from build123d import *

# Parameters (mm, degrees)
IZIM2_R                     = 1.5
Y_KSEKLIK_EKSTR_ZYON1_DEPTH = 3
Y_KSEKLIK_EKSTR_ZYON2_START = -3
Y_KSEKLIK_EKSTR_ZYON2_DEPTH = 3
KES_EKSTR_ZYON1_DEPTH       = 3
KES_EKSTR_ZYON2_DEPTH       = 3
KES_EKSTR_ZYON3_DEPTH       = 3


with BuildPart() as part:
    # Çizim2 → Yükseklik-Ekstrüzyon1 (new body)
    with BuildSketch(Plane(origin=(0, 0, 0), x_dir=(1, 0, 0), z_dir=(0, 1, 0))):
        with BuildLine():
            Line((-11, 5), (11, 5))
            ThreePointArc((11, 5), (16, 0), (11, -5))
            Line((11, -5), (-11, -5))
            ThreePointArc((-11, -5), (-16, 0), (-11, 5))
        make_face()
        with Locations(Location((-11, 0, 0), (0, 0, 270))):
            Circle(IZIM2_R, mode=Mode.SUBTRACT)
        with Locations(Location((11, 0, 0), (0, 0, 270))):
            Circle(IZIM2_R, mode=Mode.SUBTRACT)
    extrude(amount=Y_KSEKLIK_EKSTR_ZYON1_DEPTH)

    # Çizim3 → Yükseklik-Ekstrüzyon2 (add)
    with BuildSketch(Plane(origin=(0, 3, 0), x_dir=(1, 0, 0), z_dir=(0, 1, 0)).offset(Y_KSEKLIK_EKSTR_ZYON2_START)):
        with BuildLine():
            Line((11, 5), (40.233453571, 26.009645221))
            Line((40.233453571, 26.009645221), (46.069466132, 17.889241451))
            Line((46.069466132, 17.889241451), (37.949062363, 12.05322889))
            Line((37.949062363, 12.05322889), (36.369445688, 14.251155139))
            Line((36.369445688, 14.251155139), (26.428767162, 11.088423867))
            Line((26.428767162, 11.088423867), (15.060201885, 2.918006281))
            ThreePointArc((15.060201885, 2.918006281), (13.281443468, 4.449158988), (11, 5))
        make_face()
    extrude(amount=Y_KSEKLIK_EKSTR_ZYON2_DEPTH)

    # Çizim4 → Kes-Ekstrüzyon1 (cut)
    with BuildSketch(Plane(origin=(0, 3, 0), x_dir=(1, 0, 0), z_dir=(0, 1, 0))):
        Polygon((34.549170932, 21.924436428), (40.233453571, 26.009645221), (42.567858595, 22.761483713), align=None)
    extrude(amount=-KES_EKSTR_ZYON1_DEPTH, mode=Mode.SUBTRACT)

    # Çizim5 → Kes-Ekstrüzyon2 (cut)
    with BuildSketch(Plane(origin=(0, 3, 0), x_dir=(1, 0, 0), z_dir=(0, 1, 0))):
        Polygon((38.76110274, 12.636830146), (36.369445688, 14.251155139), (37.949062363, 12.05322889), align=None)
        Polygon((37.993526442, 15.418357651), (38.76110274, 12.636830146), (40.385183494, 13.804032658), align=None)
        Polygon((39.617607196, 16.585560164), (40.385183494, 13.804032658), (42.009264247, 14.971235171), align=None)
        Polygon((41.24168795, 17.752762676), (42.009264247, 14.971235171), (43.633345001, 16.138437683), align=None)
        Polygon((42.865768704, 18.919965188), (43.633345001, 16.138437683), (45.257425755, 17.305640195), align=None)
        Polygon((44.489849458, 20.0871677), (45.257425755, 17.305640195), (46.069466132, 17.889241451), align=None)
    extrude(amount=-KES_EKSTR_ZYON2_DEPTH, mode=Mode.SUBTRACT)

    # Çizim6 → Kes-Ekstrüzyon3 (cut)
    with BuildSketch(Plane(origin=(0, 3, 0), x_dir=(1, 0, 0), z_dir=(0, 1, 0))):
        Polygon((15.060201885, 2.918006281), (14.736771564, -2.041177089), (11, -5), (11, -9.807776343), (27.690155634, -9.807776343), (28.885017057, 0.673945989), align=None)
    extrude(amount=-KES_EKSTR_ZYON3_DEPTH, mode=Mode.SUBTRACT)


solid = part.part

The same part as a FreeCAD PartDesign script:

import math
import FreeCAD as App
import Part
import Sketcher

V = App.Vector
Q = App.Units.Quantity


def add_polygon(sketch, points):
    """Adds a closed chain of lines whose ends are joined by coincident constraints."""
    first, n = sketch.GeometryCount, len(points)
    for a, b in zip(points, points[1:] + points[:1]):
        sketch.addGeometry(Part.LineSegment(App.Vector(*a, 0), App.Vector(*b, 0)), False)
    for i in range(n):
        sketch.addConstraint(Sketcher.Constraint("Coincident", first + i, 2, first + (i + 1) % n, 1))

doc = App.newDocument("Part")
body = doc.addObject("PartDesign::Body", "Body")

# Sketch on XZ plane
sketch1 = body.newObject("Sketcher::SketchObject", "Sketch")
sketch1.AttachmentSupport = (doc.getObject("XZ_Plane"), [""])
sketch1.MapMode = "FlatFace"
sketch1.addGeometry([
    Part.LineSegment(V(11, -5, 0), V(-11, -5, 0)),  # 0
    Part.ArcOfCircle(Part.Circle(V(-11, 0, 0), V(0, 0, 1), 5), math.radians(90), math.radians(270)),  # 1
    Part.LineSegment(V(-11, 5, 0), V(11, 5, 0)),  # 2
    Part.ArcOfCircle(Part.Circle(V(11, 0, 0), V(0, 0, 1), 5), math.radians(-90), math.radians(90)),  # 3
    Part.Circle(V(11, 0, 0), V(0, 0, 1), 1.5),  # 4
    Part.Circle(V(-11, 0, 0), V(0, 0, 1), 1.5),  # 5
], False)
sketch1.addConstraint([
    Sketcher.Constraint("Tangent", 0, 2, 1, 2),
    Sketcher.Constraint("Tangent", 1, 1, 2, 1),
    Sketcher.Constraint("Tangent", 2, 2, 3, 2),
    Sketcher.Constraint("Tangent", 3, 1, 0, 1),
    Sketcher.Constraint("Horizontal", 0),
    Sketcher.Constraint("Horizontal", 2),
    Sketcher.Constraint("Coincident", 4, 3, 3, 3),
    Sketcher.Constraint("Coincident", 5, 3, 1, 3),
    Sketcher.Constraint("Equal", 4, 5),
    Sketcher.Constraint("Symmetric", 1, 3, 3, 3, -1, 1),
    Sketcher.Constraint("Diameter", 4, Q("3 mm")),
    Sketcher.Constraint("Radius", 1, Q("5 mm")),
    Sketcher.Constraint("DistanceX", 0, 2, 0, 1, Q("22 mm")),
])
pad1 = body.newObject("PartDesign::Pad", "Pad")
pad1.Profile = sketch1
pad1.Length = 3
pad1.Reversed = True

# Sketch on XZ plane
sketch2 = body.newObject("Sketcher::SketchObject", "Sketch001")
sketch2.AttachmentSupport = (doc.getObject("XZ_Plane"), [""])
sketch2.MapMode = "FlatFace"
sketch2.addGeometry([
    Part.LineSegment(V(40.233454, -26.009645, 0), V(11, -5, 0)),  # 0
    Part.ArcOfCircle(Part.Circle(V(11, 0, 0), V(0, 0, 1), 5), math.radians(-90), math.radians(-35.704237)),  # 1
    Part.LineSegment(V(15.060202, -2.918006, 0), V(26.428767, -11.088424, 0)),  # 2
    Part.LineSegment(V(26.428767, -11.088424, 0), V(36.369446, -14.251155, 0)),  # 3
    Part.LineSegment(V(36.369446, -14.251155, 0), V(37.949062, -12.053229, 0)),  # 4
    Part.LineSegment(V(37.949062, -12.053229, 0), V(46.069466, -17.889241, 0)),  # 5
    Part.LineSegment(V(46.069466, -17.889241, 0), V(40.233454, -26.009645, 0)),  # 6
], False)
sketch2.addConstraint([
    Sketcher.Constraint("Coincident", 0, 2, 1, 1),
    Sketcher.Constraint("Coincident", 1, 2, 2, 1),
    Sketcher.Constraint("Coincident", 2, 2, 3, 1),
    Sketcher.Constraint("Coincident", 3, 2, 4, 1),
    Sketcher.Constraint("Coincident", 4, 2, 5, 1),
    Sketcher.Constraint("Coincident", 5, 2, 6, 1),
    Sketcher.Constraint("Coincident", 6, 2, 0, 1),
    Sketcher.Constraint("PointOnObject", 1, 3, -1),
    Sketcher.Constraint("Parallel", 0, 2),
    Sketcher.Constraint("Perpendicular", 2, 4),
    Sketcher.Constraint("Perpendicular", 4, 5),
    Sketcher.Constraint("Perpendicular", 5, 6),
    Sketcher.Constraint("Vertical", 1, 3, 0, 2),
    Sketcher.Constraint("Equal", 5, 6),
    Sketcher.Constraint("Radius", 1, Q("5 mm")),
    Sketcher.Constraint("Distance", 0, Q("36 mm")),
    Sketcher.Constraint("Distance", 2, Q("14 mm")),
    Sketcher.Constraint("Distance", 5, Q("10 mm")),
    Sketcher.Constraint("DistanceX", -1, 1, 1, 3, Q("11 mm")),
    Sketcher.Constraint("DistanceX", -1, 1, 1, 2, Q("15.060202 mm")),
    Sketcher.Constraint("DistanceX", 2, 2, 5, 2, Q("19.640699 mm")),
    Sketcher.Constraint("Distance", 3, Q("10.431681 mm")),
])
pad2 = body.newObject("PartDesign::Pad", "Pad001")
pad2.Profile = sketch2
pad2.Length = 3
pad2.Reversed = True

# Sketch on XZ plane
sketch3 = body.newObject("Sketcher::SketchObject", "Sketch002")
sketch3.AttachmentSupport = (doc.getObject("XZ_Plane"), [""])
sketch3.MapMode = "FlatFace"
sketch3.AttachmentOffset = App.Placement(V(0, 0, -3), App.Rotation())
add_polygon(sketch3, [(40.233454, -26.009645), (34.549171, -21.924436), (42.567859, -22.761484)])  # lines 0-2
sketch3.addConstraint([
    Sketcher.Constraint("Perpendicular", 0, 2),
    Sketcher.Constraint("Distance", 0, Q("7 mm")),
    Sketcher.Constraint("Distance", 2, Q("4 mm")),
    Sketcher.Constraint("DistanceX", -1, 1, 0, 2, Q("34.549171 mm")),
    Sketcher.Constraint("DistanceX", -1, 1, 1, 2, Q("42.567859 mm")),
    Sketcher.Constraint("DistanceY", 0, 2, -1, 1, Q("21.924436 mm")),
])
pocket1 = body.newObject("PartDesign::Pocket", "Pocket")
pocket1.Profile = sketch3
pocket1.Length = 3
pocket1.Reversed = True

# Sketch on XZ plane
sketch4 = body.newObject("Sketcher::SketchObject", "Sketch003")
sketch4.AttachmentSupport = (doc.getObject("XZ_Plane"), [""])
sketch4.MapMode = "FlatFace"
sketch4.AttachmentOffset = App.Placement(V(0, 0, -3), App.Rotation())
add_polygon(sketch4, [(38.761103, -12.63683), (36.369446, -14.251155), (37.949062, -12.053229)])  # lines 0-2
add_polygon(sketch4, [(37.993526, -15.418358), (38.761103, -12.63683), (40.385183, -13.804033)])  # lines 3-5
add_polygon(sketch4, [(39.617607, -16.58556), (40.385183, -13.804033), (42.009264, -14.971235)])  # lines 6-8
add_polygon(sketch4, [(41.241688, -17.752763), (42.009264, -14.971235), (43.633345, -16.138438)])  # lines 9-11
add_polygon(sketch4, [(42.865769, -18.919965), (43.633345, -16.138438), (45.257426, -17.30564)])  # lines 12-14
add_polygon(sketch4, [(44.489849, -20.087168), (45.257426, -17.30564), (46.069466, -17.889241)])  # lines 15-17
sketch4.addConstraint([
    Sketcher.Constraint("Coincident", 3, 2, 2, 2),
    Sketcher.Constraint("Coincident", 6, 2, 4, 2),
    Sketcher.Constraint("Coincident", 9, 2, 7, 2),
    Sketcher.Constraint("Coincident", 12, 2, 10, 2),
    Sketcher.Constraint("Coincident", 15, 2, 13, 2),
    Sketcher.Constraint("Perpendicular", 1, 2),
    Sketcher.Constraint("Parallel", 2, 4),
    Sketcher.Constraint("Parallel", 0, 5),
    Sketcher.Constraint("Parallel", 3, 6),
    Sketcher.Constraint("Parallel", 4, 7),
    Sketcher.Constraint("Parallel", 5, 8),
    Sketcher.Constraint("Parallel", 6, 9),
    Sketcher.Constraint("Parallel", 7, 10),
    Sketcher.Constraint("Parallel", 8, 11),
    Sketcher.Constraint("Parallel", 9, 12),
    Sketcher.Constraint("Parallel", 10, 13),
    Sketcher.Constraint("Parallel", 11, 14),
    Sketcher.Constraint("Parallel", 12, 15),
    Sketcher.Constraint("Parallel", 13, 16),
    Sketcher.Constraint("Perpendicular", 16, 17),
    Sketcher.Constraint("Equal", 0, 3),
    Sketcher.Constraint("Equal", 3, 5),
    Sketcher.Constraint("Equal", 5, 6),
    Sketcher.Constraint("Equal", 8, 9),
    Sketcher.Constraint("Equal", 11, 12),
    Sketcher.Constraint("Equal", 14, 15),
    Sketcher.Constraint("Distance", 2, Q("1 mm")),
    Sketcher.Constraint("DistanceY", 2, 2, 1, 2, Q("0.583601 mm")),
    Sketcher.Constraint("Distance", 1, Q("2.706671 mm")),
    Sketcher.Constraint("DistanceY", 1, 2, -1, 1, Q("12.053229 mm")),
    Sketcher.Constraint("DistanceX", -1, 1, 14, 2, Q("42.865769 mm")),
])
pocket2 = body.newObject("PartDesign::Pocket", "Pocket001")
pocket2.Profile = sketch4
pocket2.Length = 3
pocket2.Reversed = True

# Sketch on XZ plane
sketch5 = body.newObject("Sketcher::SketchObject", "Sketch004")
sketch5.AttachmentSupport = (doc.getObject("XZ_Plane"), [""])
sketch5.MapMode = "FlatFace"
sketch5.AttachmentOffset = App.Placement(V(0, 0, -3), App.Rotation())
add_polygon(sketch5, [(15.060202, -2.918006), (14.736772, 2.041177), (11, 5), (11, 9.807776), (27.690156, 9.807776), (28.885017, -0.673946)])  # lines 0-5
sketch5.addConstraint([
    Sketcher.Constraint("Vertical", 2),
    Sketcher.Constraint("Horizontal", 3),
    Sketcher.Constraint("DistanceX", -1, 1, 1, 2, Q("11 mm")),
    Sketcher.Constraint("DistanceY", -1, 1, 1, 2, Q("5 mm")),
    Sketcher.Constraint("DistanceX", -1, 1, 5, 2, Q("15.060202 mm")),
    Sketcher.Constraint("DistanceY", 0, 2, 2, 2, Q("7.766599 mm")),
    Sketcher.Constraint("Distance", 0, Q("4.969719 mm")),
    Sketcher.Constraint("Distance", 1, Q("4.76635 mm")),
    Sketcher.Constraint("Distance", 5, Q("14.00576 mm")),
    Sketcher.Constraint("DistanceX", 3, 1, 3, 2, Q("16.690156 mm")),
    Sketcher.Constraint("DistanceY", 2, 1, 2, 2, Q("4.807776 mm")),
    Sketcher.Constraint("DistanceX", 3, 2, 4, 2, Q("1.194861 mm")),
])
pocket3 = body.newObject("PartDesign::Pocket", "Pocket002")
pocket3.Profile = sketch5
pocket3.Length = 3
pocket3.Reversed = True

doc.recompute()
